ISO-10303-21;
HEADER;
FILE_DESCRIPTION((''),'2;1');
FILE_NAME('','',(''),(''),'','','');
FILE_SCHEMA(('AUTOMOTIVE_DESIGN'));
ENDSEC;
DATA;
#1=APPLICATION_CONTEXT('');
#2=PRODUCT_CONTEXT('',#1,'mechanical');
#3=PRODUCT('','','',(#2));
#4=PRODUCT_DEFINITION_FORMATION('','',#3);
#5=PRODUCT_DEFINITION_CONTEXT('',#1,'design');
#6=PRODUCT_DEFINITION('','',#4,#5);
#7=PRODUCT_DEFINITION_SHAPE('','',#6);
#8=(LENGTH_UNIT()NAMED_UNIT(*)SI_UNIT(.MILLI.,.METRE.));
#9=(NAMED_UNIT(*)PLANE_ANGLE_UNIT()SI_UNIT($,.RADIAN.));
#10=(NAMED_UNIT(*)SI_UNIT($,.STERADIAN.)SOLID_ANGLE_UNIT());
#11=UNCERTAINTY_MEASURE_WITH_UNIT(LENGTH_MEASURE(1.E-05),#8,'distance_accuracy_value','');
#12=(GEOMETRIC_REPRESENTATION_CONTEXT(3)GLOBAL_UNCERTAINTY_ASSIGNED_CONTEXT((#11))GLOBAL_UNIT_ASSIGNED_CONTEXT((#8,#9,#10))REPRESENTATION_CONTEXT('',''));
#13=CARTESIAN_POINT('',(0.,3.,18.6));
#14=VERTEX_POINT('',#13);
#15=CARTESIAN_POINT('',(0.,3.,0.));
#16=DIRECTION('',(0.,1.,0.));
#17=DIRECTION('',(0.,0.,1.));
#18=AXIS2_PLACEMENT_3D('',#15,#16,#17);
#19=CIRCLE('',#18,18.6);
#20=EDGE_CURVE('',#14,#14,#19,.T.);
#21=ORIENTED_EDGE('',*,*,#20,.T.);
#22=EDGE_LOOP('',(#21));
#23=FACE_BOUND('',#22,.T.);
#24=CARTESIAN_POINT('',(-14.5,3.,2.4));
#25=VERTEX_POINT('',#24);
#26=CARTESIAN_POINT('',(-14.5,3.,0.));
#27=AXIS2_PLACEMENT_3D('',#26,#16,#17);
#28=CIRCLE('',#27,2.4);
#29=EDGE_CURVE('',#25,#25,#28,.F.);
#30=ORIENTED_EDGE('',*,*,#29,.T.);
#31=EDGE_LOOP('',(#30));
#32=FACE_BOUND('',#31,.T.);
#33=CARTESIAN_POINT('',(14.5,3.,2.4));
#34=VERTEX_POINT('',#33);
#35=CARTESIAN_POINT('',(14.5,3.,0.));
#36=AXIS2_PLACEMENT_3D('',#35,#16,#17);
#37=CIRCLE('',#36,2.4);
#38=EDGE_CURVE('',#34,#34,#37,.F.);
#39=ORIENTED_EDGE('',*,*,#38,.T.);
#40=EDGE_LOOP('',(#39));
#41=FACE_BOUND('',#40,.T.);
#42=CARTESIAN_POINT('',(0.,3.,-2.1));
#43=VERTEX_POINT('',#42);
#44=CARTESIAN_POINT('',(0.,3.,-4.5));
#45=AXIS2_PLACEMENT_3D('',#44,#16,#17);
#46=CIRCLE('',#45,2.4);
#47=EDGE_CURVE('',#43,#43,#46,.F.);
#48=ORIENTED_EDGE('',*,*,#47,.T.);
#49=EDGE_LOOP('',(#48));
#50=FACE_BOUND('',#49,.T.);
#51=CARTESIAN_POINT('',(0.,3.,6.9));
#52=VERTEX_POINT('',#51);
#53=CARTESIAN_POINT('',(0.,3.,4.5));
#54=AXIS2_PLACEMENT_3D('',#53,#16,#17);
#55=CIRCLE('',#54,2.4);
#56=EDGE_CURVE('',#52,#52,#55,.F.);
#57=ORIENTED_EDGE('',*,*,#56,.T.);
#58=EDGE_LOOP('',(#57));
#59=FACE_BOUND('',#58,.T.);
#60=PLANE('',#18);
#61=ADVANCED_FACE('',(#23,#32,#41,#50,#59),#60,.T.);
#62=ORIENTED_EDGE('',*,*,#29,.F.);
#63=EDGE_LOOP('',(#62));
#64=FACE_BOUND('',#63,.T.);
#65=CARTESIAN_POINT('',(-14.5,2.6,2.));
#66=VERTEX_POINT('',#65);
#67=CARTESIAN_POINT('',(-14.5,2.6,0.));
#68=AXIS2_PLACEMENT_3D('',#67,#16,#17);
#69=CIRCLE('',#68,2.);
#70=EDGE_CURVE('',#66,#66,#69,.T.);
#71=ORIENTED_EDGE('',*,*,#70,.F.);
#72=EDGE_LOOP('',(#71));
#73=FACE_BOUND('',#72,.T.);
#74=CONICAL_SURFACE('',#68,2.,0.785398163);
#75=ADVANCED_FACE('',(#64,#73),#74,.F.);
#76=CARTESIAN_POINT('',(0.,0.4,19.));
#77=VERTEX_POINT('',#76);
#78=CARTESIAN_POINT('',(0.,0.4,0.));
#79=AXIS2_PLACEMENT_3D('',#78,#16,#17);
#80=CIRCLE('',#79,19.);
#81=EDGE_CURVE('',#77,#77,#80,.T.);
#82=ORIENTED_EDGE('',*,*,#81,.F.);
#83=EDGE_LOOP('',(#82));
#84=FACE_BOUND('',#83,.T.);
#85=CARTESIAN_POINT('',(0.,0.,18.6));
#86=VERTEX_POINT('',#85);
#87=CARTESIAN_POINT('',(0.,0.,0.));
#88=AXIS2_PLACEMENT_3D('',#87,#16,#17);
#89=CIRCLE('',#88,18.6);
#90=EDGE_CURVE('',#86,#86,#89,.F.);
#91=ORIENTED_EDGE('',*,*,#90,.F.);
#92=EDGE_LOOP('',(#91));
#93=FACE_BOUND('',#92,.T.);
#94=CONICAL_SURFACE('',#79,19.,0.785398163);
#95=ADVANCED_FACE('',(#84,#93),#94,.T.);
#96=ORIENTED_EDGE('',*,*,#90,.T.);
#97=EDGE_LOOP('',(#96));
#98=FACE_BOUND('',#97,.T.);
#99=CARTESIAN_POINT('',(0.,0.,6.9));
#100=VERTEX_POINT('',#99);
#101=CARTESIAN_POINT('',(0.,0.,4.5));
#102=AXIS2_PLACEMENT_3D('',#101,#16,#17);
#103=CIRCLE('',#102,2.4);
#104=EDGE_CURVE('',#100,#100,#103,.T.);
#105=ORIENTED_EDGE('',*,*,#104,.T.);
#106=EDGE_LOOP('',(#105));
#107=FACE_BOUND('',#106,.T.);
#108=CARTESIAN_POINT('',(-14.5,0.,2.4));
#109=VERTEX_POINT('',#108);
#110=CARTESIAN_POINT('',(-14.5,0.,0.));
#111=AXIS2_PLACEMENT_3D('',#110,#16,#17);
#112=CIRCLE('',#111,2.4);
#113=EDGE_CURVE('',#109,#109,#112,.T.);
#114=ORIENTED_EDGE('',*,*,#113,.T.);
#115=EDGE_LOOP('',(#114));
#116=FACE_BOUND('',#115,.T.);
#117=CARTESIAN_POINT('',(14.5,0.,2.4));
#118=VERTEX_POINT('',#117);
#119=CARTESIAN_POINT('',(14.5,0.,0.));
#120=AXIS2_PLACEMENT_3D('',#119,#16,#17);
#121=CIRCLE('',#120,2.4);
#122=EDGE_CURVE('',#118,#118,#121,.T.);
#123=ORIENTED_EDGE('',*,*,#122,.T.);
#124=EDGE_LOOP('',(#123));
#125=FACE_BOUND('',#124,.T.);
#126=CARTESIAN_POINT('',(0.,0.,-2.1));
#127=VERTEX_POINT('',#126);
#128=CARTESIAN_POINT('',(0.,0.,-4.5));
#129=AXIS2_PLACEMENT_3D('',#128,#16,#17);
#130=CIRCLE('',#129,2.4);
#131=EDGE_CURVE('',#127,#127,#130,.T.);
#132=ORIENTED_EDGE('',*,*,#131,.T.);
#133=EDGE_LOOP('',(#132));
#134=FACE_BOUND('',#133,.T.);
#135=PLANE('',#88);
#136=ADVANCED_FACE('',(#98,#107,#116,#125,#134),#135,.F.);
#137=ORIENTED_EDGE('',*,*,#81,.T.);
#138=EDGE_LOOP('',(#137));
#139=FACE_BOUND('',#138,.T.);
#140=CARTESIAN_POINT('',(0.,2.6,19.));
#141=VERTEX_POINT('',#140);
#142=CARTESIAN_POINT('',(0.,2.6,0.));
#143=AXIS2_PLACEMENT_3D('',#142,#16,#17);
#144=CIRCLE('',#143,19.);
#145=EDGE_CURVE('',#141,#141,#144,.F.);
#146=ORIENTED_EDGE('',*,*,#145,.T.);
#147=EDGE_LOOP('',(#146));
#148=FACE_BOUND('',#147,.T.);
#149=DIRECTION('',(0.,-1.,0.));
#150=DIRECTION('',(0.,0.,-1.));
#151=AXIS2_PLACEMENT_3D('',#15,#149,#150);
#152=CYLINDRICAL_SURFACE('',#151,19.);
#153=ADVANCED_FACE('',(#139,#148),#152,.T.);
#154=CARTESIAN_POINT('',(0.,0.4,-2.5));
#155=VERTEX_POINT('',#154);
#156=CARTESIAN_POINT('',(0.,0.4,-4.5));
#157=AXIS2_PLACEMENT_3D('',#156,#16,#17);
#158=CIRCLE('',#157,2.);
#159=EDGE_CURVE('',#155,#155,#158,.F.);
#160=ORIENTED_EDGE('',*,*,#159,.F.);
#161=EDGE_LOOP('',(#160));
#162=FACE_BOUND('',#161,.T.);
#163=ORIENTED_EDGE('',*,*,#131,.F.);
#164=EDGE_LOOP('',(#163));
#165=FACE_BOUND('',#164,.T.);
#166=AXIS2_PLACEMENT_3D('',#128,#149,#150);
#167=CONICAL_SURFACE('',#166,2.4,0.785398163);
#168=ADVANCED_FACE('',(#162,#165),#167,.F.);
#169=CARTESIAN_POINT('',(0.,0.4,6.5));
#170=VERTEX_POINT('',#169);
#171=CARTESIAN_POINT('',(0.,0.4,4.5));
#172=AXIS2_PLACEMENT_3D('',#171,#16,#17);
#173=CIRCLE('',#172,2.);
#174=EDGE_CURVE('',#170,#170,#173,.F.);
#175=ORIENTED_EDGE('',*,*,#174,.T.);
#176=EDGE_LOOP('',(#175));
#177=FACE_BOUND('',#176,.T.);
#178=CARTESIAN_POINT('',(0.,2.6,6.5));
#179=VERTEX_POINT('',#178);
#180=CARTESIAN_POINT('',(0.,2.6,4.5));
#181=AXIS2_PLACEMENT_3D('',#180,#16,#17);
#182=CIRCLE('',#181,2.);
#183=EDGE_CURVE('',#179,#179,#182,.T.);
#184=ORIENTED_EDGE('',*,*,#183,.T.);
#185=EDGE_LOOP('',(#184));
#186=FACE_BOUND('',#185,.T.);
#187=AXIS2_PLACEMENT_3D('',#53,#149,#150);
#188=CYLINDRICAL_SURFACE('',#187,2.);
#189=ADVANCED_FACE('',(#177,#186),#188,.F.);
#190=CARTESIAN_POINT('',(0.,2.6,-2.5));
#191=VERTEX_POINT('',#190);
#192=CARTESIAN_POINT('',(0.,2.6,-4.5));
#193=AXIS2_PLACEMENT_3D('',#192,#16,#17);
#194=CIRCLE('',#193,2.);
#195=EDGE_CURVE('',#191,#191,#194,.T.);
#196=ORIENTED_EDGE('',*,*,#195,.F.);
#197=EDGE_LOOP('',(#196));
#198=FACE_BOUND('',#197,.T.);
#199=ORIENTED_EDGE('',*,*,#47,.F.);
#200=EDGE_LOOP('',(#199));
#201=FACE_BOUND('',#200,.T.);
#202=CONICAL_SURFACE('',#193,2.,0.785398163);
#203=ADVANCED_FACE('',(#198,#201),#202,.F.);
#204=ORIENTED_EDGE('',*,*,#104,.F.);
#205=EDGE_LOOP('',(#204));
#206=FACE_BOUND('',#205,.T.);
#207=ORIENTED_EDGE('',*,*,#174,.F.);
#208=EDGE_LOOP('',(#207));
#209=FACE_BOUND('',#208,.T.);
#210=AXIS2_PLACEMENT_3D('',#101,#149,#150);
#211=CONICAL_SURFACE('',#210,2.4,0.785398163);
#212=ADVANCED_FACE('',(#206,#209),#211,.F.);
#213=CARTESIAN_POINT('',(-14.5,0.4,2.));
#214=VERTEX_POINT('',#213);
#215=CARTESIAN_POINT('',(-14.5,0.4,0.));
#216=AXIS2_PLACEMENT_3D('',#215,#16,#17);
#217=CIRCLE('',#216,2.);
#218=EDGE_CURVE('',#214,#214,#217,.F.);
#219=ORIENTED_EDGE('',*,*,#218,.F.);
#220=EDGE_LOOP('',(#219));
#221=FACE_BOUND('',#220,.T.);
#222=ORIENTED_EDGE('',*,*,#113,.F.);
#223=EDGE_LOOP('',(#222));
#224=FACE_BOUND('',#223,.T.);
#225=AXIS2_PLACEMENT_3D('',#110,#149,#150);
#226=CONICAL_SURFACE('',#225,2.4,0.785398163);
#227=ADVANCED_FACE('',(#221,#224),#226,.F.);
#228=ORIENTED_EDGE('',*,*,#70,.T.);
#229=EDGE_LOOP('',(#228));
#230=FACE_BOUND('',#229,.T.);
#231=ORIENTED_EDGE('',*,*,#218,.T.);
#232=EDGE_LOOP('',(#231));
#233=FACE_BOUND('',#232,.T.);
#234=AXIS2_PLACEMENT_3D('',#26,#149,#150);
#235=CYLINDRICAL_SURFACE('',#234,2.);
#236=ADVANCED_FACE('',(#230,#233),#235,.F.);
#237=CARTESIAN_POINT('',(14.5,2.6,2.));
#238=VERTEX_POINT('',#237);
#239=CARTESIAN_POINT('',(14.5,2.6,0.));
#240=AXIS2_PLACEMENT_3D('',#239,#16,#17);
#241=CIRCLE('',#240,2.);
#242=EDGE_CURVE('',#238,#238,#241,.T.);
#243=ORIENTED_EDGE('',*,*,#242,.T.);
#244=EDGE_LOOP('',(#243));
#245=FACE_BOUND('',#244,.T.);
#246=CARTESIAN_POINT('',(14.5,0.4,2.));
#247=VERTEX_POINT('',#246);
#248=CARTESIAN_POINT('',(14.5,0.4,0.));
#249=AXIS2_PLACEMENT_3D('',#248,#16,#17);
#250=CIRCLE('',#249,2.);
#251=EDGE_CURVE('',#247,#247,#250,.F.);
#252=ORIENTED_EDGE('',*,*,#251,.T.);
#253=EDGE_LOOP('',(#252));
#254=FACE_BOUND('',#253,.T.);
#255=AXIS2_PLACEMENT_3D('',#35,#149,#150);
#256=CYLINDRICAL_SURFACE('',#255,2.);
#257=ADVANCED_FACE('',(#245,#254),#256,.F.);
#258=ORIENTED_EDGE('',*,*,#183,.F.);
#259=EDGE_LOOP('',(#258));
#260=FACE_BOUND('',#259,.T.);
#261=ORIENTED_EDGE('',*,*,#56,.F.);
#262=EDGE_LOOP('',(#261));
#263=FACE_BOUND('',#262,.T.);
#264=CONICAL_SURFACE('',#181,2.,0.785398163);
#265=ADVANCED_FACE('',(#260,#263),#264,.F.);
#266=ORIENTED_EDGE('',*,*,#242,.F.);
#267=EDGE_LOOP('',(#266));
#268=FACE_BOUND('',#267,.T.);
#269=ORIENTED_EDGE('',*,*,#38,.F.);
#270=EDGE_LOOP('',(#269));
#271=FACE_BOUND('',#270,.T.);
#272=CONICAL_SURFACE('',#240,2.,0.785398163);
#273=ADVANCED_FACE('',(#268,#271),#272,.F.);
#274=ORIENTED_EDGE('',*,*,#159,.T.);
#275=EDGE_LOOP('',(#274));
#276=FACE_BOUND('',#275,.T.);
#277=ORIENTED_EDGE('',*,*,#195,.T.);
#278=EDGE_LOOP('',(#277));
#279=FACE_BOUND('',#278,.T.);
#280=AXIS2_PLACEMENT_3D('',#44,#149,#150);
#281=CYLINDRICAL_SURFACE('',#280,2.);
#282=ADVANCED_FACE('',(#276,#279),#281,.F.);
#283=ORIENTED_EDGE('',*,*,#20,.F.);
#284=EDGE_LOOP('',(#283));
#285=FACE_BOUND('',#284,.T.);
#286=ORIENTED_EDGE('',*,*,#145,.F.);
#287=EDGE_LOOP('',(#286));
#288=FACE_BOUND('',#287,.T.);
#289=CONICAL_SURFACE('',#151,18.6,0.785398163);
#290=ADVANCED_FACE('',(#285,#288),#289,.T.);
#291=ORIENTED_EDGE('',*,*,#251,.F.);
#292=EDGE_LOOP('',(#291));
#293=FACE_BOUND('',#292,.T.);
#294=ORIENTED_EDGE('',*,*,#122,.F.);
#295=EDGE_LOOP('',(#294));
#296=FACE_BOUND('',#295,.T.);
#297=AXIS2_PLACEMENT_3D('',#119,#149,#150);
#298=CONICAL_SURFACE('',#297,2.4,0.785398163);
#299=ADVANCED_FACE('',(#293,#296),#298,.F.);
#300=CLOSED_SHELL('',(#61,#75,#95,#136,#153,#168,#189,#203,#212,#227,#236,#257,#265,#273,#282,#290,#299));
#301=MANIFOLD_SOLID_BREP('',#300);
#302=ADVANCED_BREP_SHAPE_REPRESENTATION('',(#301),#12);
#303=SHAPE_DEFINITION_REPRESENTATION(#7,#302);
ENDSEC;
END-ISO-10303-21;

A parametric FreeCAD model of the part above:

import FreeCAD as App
import Part
import Sketcher

V = App.Vector


def edges_at(feature, points):
    """Names of the edges that pass closest to the given points."""
    edges = feature.Shape.Edges
    near = lambda p: min(range(len(edges)), key=lambda i: edges[i].distToShape(Part.Vertex(*p))[0])
    return sorted({f"Edge{near(p) + 1}" for p in points})

doc = App.newDocument("Part")
body = doc.addObject("PartDesign::Body", "Body")

# Sketch on XZ plane
sketch1 = doc.addObject("Sketcher::SketchObject", "Sketch")
body.addObject(sketch1)
sketch1.AttachmentSupport = (doc.XZ_Plane, [""])
sketch1.MapMode = "FlatFace"
sketch1.addGeometry([
    Part.Circle(V(0, 0, 0), V(0, 0, 1), 19),  # 0
    Part.Circle(V(0, 4.5, 0), V(0, 0, 1), 2),  # 1
    Part.Circle(V(-14.5, 0, 0), V(0, 0, 1), 2),  # 2
    Part.Circle(V(14.5, 0, 0), V(0, 0, 1), 2),  # 3
    Part.Circle(V(0, -4.5, 0), V(0, 0, 1), 2),  # 4
], False)
sketch1.addConstraint([
    Sketcher.Constraint("Coincident", 0, 3, -1, 1),
    Sketcher.Constraint("Equal", 1, 2),
    Sketcher.Constraint("Equal", 2, 3),
    Sketcher.Constraint("Equal", 3, 4),
    Sketcher.Constraint("Symmetric", 2, 3, 3, 3, -1, 1),
    Sketcher.Constraint("Symmetric", 1, 3, 4, 3, -1, 1),
    Sketcher.Constraint("PointOnObject", 1, 3, -2),
    Sketcher.Constraint("PointOnObject", 2, 3, -1),
    Sketcher.Constraint("Diameter", 0, 38.0),
    Sketcher.Constraint("Diameter", 1, 4.0),
    Sketcher.Constraint("DistanceX", 2, 3, 3, 3, 29.0),
    Sketcher.Constraint("DistanceY", 4, 3, 1, 3, 9.0),
])
pad1 = doc.addObject("PartDesign::Pad", "Pad")
body.addObject(pad1)
pad1.Profile = sketch1
pad1.Length = 3
pad1.Reversed = True
doc.recompute()

chamfer = doc.addObject("PartDesign::Chamfer", "Chamfer")
body.addObject(chamfer)
chamfer.Base = (pad1, edges_at(pad1, [
    (-2, 0, -4.5),
    (-2, 3, -4.5),
    (-2, 0, 4.5),
    (-2, 3, 4.5),
    (-19, 0, 0),
    (-19, 3, 0),
    (-16.5, 0, 0),
    (-16.5, 3, 0),
    (12.5, 0, 0),
    (12.5, 3, 0),
]))
chamfer.Size = 0.4

doc.recompute()
